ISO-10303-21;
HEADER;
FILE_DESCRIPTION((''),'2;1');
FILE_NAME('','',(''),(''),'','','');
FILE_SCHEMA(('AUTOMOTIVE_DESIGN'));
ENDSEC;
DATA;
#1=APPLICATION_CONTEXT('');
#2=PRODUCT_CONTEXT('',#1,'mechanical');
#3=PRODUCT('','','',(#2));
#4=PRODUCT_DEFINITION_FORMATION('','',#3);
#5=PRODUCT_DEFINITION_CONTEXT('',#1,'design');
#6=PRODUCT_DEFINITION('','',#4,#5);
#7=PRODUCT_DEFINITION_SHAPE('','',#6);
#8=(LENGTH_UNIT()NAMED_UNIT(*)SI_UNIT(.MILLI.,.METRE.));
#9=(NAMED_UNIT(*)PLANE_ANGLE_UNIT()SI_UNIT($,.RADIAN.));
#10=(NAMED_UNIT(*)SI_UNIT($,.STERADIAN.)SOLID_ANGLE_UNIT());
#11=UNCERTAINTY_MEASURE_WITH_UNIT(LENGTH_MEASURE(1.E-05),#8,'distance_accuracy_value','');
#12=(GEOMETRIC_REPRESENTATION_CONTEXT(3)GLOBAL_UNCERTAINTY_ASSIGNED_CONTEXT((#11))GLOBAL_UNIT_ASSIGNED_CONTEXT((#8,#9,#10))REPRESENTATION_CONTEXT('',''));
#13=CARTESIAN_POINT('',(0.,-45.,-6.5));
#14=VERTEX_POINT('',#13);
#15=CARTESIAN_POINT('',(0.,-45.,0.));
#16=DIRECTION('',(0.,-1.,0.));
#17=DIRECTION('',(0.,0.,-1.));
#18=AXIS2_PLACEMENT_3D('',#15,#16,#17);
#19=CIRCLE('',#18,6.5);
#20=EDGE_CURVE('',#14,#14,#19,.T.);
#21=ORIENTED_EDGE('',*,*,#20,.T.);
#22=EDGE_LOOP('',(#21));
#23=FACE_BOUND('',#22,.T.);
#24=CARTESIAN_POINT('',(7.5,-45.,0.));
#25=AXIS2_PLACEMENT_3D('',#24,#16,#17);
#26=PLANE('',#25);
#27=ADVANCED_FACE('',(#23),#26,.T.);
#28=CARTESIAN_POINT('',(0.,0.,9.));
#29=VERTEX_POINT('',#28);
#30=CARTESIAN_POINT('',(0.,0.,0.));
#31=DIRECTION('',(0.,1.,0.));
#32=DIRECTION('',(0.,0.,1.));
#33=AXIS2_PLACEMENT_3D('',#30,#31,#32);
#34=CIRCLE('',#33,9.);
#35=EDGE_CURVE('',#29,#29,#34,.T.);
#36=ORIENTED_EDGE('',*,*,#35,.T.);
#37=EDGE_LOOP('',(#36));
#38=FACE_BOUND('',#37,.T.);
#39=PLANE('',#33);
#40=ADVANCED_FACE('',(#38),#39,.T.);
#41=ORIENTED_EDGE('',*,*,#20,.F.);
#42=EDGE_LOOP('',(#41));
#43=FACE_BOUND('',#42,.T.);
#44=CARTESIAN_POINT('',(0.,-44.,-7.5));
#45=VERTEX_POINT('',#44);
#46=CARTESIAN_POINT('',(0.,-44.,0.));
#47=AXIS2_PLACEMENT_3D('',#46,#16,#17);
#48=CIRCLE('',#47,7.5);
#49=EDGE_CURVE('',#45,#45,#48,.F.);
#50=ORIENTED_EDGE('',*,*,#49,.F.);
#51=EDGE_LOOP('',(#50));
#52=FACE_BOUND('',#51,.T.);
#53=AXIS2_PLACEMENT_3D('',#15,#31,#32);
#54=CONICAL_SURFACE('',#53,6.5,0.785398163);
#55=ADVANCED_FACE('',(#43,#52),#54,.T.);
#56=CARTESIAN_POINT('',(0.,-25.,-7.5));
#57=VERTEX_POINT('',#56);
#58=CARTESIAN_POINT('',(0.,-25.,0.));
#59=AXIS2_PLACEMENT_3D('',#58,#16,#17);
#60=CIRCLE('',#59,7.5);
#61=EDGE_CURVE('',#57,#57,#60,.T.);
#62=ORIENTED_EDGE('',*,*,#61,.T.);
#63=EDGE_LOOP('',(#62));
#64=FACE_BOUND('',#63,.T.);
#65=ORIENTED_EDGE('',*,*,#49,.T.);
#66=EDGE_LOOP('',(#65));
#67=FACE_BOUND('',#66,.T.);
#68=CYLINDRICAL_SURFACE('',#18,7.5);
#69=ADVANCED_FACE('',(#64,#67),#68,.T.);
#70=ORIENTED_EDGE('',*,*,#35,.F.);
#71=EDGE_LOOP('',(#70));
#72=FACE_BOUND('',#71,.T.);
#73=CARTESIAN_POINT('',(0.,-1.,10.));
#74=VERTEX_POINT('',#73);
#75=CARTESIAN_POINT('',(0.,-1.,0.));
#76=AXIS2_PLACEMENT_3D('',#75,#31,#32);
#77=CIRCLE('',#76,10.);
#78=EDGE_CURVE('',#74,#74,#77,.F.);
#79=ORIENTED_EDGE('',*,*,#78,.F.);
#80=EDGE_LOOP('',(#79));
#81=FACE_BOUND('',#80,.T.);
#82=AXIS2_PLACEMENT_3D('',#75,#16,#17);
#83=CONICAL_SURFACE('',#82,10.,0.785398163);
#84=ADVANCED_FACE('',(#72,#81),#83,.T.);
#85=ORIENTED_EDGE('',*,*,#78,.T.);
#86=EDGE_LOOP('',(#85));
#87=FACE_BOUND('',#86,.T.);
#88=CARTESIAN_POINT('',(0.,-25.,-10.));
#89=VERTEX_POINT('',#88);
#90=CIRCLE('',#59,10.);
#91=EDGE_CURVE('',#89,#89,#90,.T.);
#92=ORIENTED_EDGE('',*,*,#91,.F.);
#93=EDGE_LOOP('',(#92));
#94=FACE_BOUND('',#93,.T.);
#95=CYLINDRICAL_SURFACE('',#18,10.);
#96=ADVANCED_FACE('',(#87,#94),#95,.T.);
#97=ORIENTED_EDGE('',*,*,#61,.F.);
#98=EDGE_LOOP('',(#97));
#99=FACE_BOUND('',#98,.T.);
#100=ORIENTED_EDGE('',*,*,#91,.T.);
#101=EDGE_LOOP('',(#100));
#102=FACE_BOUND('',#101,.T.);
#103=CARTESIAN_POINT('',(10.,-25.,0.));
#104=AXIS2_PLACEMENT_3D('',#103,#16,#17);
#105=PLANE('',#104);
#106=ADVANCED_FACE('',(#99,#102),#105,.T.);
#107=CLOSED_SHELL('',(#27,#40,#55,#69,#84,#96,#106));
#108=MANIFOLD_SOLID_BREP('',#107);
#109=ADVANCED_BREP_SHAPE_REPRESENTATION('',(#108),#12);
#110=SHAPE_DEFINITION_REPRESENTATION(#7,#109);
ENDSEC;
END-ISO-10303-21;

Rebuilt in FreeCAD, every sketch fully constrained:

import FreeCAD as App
import Part
import Sketcher
from FreeCAD import Vector


def edges_at(feature, points):
    """Names of the edges that pass closest to the given points."""
    edges = feature.Shape.Edges
    near = lambda p: min(range(len(edges)), key=lambda i: edges[i].distToShape(Part.Vertex(*p))[0])
    return sorted({f"Edge{near(p) + 1}" for p in points})

doc = App.newDocument("Part")
body = doc.addObject("PartDesign::Body", "Body")

# Sketch on XY plane
sketch1 = body.newObject("Sketcher::SketchObject", "Sketch")
sketch1.AttachmentSupport = (doc.getObject("XY_Plane"), [""])
sketch1.MapMode = "FlatFace"
sketch1.addGeometry([
    Part.LineSegment(Vector(10, 0, 0), Vector(0, 0, 0)),  # 0
    Part.LineSegment(Vector(0, 0, 0), Vector(0, -45, 0)),  # 1
    Part.LineSegment(Vector(0, -45, 0), Vector(7.5, -45, 0)),  # 2
    Part.LineSegment(Vector(7.5, -45, 0), Vector(7.5, -25, 0)),  # 3
    Part.LineSegment(Vector(7.5, -25, 0), Vector(10, -25, 0)),  # 4
    Part.LineSegment(Vector(10, -25, 0), Vector(10, 0, 0)),  # 5
], False)
sketch1.addConstraint([
    Sketcher.Constraint("Coincident", 0, 2, 1, 1),
    Sketcher.Constraint("Coincident", 1, 2, 2, 1),
    Sketcher.Constraint("Coincident", 2, 2, 3, 1),
    Sketcher.Constraint("Coincident", 3, 2, 4, 1),
    Sketcher.Constraint("Coincident", 4, 2, 5, 1),
    Sketcher.Constraint("Coincident", 5, 2, 0, 1),
    Sketcher.Constraint("Horizontal", 0),
    Sketcher.Constraint("Vertical", 1),
    Sketcher.Constraint("Horizontal", 2),
    Sketcher.Constraint("Vertical", 3),
    Sketcher.Constraint("Horizontal", 4),
    Sketcher.Constraint("Vertical", 5),
    Sketcher.Constraint("Coincident", 0, 2, -1, 1),
    Sketcher.Constraint("DistanceX", 0, 2, 0, 1, 10.0),
    Sketcher.Constraint("DistanceY", 1, 2, 1, 1, 45.0),
    Sketcher.Constraint("DistanceY", 3, 1, 3, 2, 20.0),
    Sketcher.Constraint("DistanceX", 2, 1, 2, 2, 7.5),
])
revolution = body.newObject("PartDesign::Revolution", "Revolution")
revolution.Profile = sketch1
revolution.ReferenceAxis = (sketch1, ["V_Axis"])
revolution.Angle = 360
doc.recompute()

chamfer = body.newObject("PartDesign::Chamfer", "Chamfer")
chamfer.Base = (revolution, edges_at(revolution, [(-7.5, -45, 0), (-10, 0, 0)]))
chamfer.Size = 1

doc.recompute()
